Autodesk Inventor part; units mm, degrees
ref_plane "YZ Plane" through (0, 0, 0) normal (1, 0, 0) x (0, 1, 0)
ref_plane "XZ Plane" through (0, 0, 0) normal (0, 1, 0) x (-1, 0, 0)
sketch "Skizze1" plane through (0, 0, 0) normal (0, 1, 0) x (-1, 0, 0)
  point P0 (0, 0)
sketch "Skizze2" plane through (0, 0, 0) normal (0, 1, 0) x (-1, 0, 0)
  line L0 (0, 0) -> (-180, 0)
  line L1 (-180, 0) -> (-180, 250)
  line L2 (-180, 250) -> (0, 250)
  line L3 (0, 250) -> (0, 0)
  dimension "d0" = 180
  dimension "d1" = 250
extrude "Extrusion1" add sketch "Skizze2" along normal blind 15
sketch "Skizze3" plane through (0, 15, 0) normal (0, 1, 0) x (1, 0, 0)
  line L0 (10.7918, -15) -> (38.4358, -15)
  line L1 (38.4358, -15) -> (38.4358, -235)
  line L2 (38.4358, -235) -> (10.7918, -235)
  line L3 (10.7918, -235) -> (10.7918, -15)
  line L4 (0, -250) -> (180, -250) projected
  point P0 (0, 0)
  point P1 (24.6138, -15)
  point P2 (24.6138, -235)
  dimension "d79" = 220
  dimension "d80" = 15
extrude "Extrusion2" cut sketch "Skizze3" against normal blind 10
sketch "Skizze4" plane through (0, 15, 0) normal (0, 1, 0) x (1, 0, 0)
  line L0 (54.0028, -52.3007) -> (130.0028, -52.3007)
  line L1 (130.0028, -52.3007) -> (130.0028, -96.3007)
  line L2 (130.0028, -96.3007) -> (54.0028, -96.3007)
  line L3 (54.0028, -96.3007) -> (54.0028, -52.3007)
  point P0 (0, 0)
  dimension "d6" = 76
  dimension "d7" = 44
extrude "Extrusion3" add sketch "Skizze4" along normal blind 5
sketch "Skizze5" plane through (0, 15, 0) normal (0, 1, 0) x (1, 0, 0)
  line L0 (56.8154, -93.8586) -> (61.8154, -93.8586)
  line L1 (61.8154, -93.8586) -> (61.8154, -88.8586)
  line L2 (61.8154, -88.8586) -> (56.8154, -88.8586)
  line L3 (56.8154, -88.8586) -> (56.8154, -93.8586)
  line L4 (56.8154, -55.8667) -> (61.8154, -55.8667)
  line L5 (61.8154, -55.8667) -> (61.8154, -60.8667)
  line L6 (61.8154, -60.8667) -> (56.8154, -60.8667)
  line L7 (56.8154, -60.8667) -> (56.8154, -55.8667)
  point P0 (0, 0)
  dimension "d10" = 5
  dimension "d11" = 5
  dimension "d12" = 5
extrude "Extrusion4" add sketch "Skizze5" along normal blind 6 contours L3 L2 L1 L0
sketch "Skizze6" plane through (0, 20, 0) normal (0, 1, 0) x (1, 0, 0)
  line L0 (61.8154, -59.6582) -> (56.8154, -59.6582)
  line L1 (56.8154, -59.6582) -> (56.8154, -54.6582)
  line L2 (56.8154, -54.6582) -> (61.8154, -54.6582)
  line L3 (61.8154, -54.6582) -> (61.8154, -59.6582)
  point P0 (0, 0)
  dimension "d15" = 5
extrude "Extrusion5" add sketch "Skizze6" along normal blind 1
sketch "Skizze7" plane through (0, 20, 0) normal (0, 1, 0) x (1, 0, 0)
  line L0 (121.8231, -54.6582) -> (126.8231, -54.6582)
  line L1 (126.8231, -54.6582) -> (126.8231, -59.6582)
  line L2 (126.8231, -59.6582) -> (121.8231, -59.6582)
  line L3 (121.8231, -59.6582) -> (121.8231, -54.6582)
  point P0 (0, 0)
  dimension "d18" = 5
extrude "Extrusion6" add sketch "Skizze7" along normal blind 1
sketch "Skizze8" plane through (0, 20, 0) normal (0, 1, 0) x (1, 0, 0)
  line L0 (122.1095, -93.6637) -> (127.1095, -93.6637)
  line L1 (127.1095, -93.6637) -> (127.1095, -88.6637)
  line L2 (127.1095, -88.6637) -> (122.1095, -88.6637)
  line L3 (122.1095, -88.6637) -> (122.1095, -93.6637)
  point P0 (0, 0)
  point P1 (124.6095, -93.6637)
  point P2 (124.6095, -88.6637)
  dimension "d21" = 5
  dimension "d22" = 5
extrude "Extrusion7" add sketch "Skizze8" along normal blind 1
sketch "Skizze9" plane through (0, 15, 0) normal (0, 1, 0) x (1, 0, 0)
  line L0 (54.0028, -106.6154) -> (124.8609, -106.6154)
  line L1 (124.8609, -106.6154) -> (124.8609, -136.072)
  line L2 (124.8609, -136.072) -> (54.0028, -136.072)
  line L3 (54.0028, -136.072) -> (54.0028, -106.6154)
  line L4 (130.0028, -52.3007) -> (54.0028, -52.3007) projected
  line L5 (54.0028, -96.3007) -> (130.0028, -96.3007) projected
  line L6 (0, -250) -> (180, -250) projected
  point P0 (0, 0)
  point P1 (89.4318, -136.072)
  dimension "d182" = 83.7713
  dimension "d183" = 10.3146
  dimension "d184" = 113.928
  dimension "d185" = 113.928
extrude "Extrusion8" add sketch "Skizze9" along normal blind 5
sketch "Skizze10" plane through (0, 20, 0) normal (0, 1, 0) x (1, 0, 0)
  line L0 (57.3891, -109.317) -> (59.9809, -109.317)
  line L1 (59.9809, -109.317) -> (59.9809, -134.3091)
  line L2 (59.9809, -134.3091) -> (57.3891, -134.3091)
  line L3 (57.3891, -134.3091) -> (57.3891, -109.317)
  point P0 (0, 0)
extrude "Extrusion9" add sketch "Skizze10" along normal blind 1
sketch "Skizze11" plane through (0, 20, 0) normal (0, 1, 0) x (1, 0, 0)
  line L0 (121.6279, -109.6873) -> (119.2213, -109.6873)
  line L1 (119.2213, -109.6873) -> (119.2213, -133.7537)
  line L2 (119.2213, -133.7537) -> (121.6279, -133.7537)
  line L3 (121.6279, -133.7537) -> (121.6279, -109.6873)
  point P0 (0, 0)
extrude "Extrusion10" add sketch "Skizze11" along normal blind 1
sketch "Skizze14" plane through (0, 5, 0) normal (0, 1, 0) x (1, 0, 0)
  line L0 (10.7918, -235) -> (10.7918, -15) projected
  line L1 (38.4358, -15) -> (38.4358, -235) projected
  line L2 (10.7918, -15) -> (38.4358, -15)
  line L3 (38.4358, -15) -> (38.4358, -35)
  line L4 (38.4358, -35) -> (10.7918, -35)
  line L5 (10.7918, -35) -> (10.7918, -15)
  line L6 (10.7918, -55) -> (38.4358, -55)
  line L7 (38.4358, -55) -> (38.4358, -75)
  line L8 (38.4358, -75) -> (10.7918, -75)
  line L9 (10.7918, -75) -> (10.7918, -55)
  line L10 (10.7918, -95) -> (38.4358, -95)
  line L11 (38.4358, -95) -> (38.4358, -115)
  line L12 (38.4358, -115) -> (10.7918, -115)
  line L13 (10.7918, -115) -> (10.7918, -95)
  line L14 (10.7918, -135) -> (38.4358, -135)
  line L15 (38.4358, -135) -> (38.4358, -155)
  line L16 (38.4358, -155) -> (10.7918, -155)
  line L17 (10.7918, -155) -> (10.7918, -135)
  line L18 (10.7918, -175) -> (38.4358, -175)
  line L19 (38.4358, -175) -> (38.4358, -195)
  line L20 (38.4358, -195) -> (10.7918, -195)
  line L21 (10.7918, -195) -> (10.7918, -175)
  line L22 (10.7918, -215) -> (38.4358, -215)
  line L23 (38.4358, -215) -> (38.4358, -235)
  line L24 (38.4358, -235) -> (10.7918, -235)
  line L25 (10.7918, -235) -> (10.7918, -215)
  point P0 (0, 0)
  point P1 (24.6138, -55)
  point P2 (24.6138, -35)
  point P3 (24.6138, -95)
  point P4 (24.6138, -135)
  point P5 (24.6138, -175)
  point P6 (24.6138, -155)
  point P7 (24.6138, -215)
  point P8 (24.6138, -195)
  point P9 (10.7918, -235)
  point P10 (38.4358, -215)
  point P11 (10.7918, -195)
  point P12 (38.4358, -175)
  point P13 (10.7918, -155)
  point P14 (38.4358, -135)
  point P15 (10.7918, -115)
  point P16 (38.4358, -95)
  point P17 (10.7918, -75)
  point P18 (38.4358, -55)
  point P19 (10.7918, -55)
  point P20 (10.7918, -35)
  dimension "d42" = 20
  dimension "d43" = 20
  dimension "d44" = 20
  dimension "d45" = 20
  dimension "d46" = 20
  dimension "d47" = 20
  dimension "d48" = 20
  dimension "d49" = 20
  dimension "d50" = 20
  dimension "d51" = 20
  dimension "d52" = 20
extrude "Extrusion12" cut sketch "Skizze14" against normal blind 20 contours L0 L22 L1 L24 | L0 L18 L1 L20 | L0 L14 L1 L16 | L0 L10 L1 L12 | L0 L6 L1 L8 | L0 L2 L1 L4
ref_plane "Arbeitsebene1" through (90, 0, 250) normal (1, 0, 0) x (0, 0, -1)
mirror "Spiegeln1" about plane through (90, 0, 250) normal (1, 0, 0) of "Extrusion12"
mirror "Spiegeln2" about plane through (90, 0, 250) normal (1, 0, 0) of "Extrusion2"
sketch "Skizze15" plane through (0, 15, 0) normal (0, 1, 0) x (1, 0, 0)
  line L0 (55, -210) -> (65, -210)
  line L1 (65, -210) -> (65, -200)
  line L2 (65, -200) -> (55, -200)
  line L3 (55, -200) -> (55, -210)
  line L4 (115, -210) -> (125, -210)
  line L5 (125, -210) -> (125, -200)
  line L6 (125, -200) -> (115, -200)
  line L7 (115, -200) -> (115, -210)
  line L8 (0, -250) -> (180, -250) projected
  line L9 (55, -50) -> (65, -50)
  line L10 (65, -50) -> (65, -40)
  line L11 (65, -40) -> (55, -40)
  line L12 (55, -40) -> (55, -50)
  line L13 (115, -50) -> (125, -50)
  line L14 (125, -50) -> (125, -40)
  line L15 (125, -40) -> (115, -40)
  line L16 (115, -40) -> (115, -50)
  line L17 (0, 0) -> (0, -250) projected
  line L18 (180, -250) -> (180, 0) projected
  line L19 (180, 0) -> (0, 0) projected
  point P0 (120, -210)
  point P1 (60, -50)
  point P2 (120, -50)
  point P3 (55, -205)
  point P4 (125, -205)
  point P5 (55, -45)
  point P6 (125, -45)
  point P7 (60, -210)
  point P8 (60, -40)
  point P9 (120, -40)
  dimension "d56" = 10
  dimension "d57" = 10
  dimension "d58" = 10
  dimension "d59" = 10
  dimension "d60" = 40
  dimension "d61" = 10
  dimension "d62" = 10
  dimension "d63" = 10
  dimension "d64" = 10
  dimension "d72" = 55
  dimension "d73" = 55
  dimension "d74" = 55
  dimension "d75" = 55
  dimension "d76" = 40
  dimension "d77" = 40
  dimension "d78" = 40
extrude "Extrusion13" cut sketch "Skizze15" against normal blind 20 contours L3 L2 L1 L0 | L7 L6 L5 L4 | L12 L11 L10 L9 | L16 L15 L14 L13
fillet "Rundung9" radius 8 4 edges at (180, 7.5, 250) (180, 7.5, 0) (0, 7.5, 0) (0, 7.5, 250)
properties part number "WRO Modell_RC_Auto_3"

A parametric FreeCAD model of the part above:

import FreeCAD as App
import Part
import Sketcher


def edges_at(feature, points):
    """Names of the edges that pass closest to the given points."""
    edges = feature.Shape.Edges
    near = lambda p: min(range(len(edges)), key=lambda i: edges[i].distToShape(Part.Vertex(*p))[0])
    return sorted({f"Edge{near(p) + 1}" for p in points})

doc = App.newDocument("Part")
body = doc.addObject("PartDesign::Body", "Body")

sketch1 = doc.addObject("Sketcher::SketchObject", "Sketch")
body.addObject(sketch1)
sketch1.AttachmentSupport = (doc.XZ_Plane, [""])
sketch1.MapMode = "FlatFace"
sketch1.addGeometry(Part.LineSegment(App.Vector(180, 0, 0), App.Vector(0, 0, 0)), False)
sketch1.addGeometry(Part.LineSegment(App.Vector(0, 0, 0), App.Vector(0, 250, 0)), False)
sketch1.addGeometry(Part.LineSegment(App.Vector(0, 250, 0), App.Vector(180, 250, 0)), False)
sketch1.addGeometry(Part.LineSegment(App.Vector(180, 250, 0), App.Vector(180, 0, 0)), False)
sketch1.addConstraint(Sketcher.Constraint("Coincident", 0, 2, 1, 1))
sketch1.addConstraint(Sketcher.Constraint("Coincident", 1, 2, 2, 1))
sketch1.addConstraint(Sketcher.Constraint("Coincident", 2, 2, 3, 1))
sketch1.addConstraint(Sketcher.Constraint("Coincident", 3, 2, 0, 1))
sketch1.addConstraint(Sketcher.Constraint("Horizontal", 0))
sketch1.addConstraint(Sketcher.Constraint("Vertical", 1))
sketch1.addConstraint(Sketcher.Constraint("Horizontal", 2))
sketch1.addConstraint(Sketcher.Constraint("Vertical", 3))
sketch1.addConstraint(Sketcher.Constraint("Coincident", 0, 2, -1, 1))
sketch1.addConstraint(Sketcher.Constraint("DistanceX", 0, 2, 0, 1, 180.0))
sketch1.addConstraint(Sketcher.Constraint("DistanceY", 1, 1, 1, 2, 250.0))
pad1 = doc.addObject("PartDesign::Pad", "Pad")
body.addObject(pad1)
pad1.Profile = sketch1
pad1.Length = 15
pad1.Reversed = True

sketch2 = doc.addObject("Sketcher::SketchObject", "Sketch001")
body.addObject(sketch2)
sketch2.AttachmentSupport = (doc.XZ_Plane, [""])
sketch2.MapMode = "FlatFace"
sketch2.AttachmentOffset = App.Placement(App.Vector(0, 0, -15), App.Rotation())
sketch2.addGeometry(Part.LineSegment(App.Vector(38.4358, 15, 0), App.Vector(10.7918, 15, 0)), False)
sketch2.addGeometry(Part.LineSegment(App.Vector(10.7918, 15, 0), App.Vector(10.7918, 235, 0)), False)
sketch2.addGeometry(Part.LineSegment(App.Vector(10.7918, 235, 0), App.Vector(38.4358, 235, 0)), False)
sketch2.addGeometry(Part.LineSegment(App.Vector(38.4358, 235, 0), App.Vector(38.4358, 15, 0)), False)
sketch2.addConstraint(Sketcher.Constraint("Coincident", 0, 2, 1, 1))
sketch2.addConstraint(Sketcher.Constraint("Coincident", 1, 2, 2, 1))
sketch2.addConstraint(Sketcher.Constraint("Coincident", 2, 2, 3, 1))
sketch2.addConstraint(Sketcher.Constraint("Coincident", 3, 2, 0, 1))
sketch2.addConstraint(Sketcher.Constraint("Horizontal", 0))
sketch2.addConstraint(Sketcher.Constraint("Vertical", 1))
sketch2.addConstraint(Sketcher.Constraint("Horizontal", 2))
sketch2.addConstraint(Sketcher.Constraint("Vertical", 3))
sketch2.addConstraint(Sketcher.Constraint("DistanceY", 1, 1, 1, 2, 220.0))
sketch2.addConstraint(Sketcher.Constraint("DistanceY", -1, 1, 0, 2, 15.0))
sketch2.addConstraint(Sketcher.Constraint("DistanceX", 0, 2, 0, 1, 27.644))
sketch2.addConstraint(Sketcher.Constraint("DistanceX", -1, 1, 0, 2, 10.7918))
pocket1 = doc.addObject("PartDesign::Pocket", "Pocket")
body.addObject(pocket1)
pocket1.Profile = sketch2
pocket1.Length = 10
pocket1.Reversed = True

sketch3 = doc.addObject("Sketcher::SketchObject", "Sketch002")
body.addObject(sketch3)
sketch3.AttachmentSupport = (doc.XZ_Plane, [""])
sketch3.MapMode = "FlatFace"
sketch3.AttachmentOffset = App.Placement(App.Vector(0, 0, -15), App.Rotation())
sketch3.addGeometry(Part.LineSegment(App.Vector(130.0028, 52.3007, 0), App.Vector(54.0028, 52.3007, 0)), False)
sketch3.addGeometry(Part.LineSegment(App.Vector(54.0028, 52.3007, 0), App.Vector(54.0028, 96.3007, 0)), False)
sketch3.addGeometry(Part.LineSegment(App.Vector(54.0028, 96.3007, 0), App.Vector(130.0028, 96.3007, 0)), False)
sketch3.addGeometry(Part.LineSegment(App.Vector(130.0028, 96.3007, 0), App.Vector(130.0028, 52.3007, 0)), False)
sketch3.addConstraint(Sketcher.Constraint("Coincident", 0, 2, 1, 1))
sketch3.addConstraint(Sketcher.Constraint("Coincident", 1, 2, 2, 1))
sketch3.addConstraint(Sketcher.Constraint("Coincident", 2, 2, 3, 1))
sketch3.addConstraint(Sketcher.Constraint("Coincident", 3, 2, 0, 1))
sketch3.addConstraint(Sketcher.Constraint("Horizontal", 0))
sketch3.addConstraint(Sketcher.Constraint("Vertical", 1))
sketch3.addConstraint(Sketcher.Constraint("Horizontal", 2))
sketch3.addConstraint(Sketcher.Constraint("Vertical", 3))
sketch3.addConstraint(Sketcher.Constraint("DistanceX", 0, 2, 0, 1, 76.0))
sketch3.addConstraint(Sketcher.Constraint("DistanceY", 1, 1, 1, 2, 44.0))
sketch3.addConstraint(Sketcher.Constraint("DistanceX", -1, 1, 0, 2, 54.0028))
sketch3.addConstraint(Sketcher.Constraint("DistanceY", -1, 1, 0, 2, 52.3007))
pad2 = doc.addObject("PartDesign::Pad", "Pad001")
body.addObject(pad2)
pad2.Profile = sketch3
pad2.Length = 5
pad2.Reversed = True

sketch4 = doc.addObject("Sketcher::SketchObject", "Sketch003")
body.addObject(sketch4)
sketch4.AttachmentSupport = (doc.XZ_Plane, [""])
sketch4.MapMode = "FlatFace"
sketch4.AttachmentOffset = App.Placement(App.Vector(0, 0, -15), App.Rotation())
sketch4.addGeometry(Part.LineSegment(App.Vector(56.8154, 88.8586, 0), App.Vector(56.8154, 93.8586, 0)), False)
sketch4.addGeometry(Part.LineSegment(App.Vector(56.8154, 93.8586, 0), App.Vector(61.8154, 93.8586, 0)), False)
sketch4.addGeometry(Part.LineSegment(App.Vector(61.8154, 93.8586, 0), App.Vector(61.8154, 88.8586, 0)), False)
sketch4.addGeometry(Part.LineSegment(App.Vector(61.8154, 88.8586, 0), App.Vector(56.8154, 88.8586, 0)), False)
sketch4.addConstraint(Sketcher.Constraint("Coincident", 0, 2, 1, 1))
sketch4.addConstraint(Sketcher.Constraint("Coincident", 1, 2, 2, 1))
sketch4.addConstraint(Sketcher.Constraint("Coincident", 2, 2, 3, 1))
sketch4.addConstraint(Sketcher.Constraint("Coincident", 3, 2, 0, 1))
sketch4.addConstraint(Sketcher.Constraint("Vertical", 0))
sketch4.addConstraint(Sketcher.Constraint("Horizontal", 1))
sketch4.addConstraint(Sketcher.Constraint("Vertical", 2))
sketch4.addConstraint(Sketcher.Constraint("Horizontal", 3))
sketch4.addConstraint(Sketcher.Constraint("Equal", 3, 0))
sketch4.addConstraint(Sketcher.Constraint("DistanceX", 1, 1, 1, 2, 5.0))
sketch4.addConstraint(Sketcher.Constraint("DistanceX", -1, 1, 0, 2, 56.8154))
sketch4.addConstraint(Sketcher.Constraint("DistanceY", -1, 1, 0, 2, 93.8586))
pad3 = doc.addObject("PartDesign::Pad", "Pad002")
body.addObject(pad3)
pad3.Profile = sketch4
pad3.Length = 6
pad3.Reversed = True

sketch5 = doc.addObject("Sketcher::SketchObject", "Sketch004")
body.addObject(sketch5)
sketch5.AttachmentSupport = (doc.XZ_Plane, [""])
sketch5.MapMode = "FlatFace"
sketch5.AttachmentOffset = App.Placement(App.Vector(0, 0, -20), App.Rotation())
sketch5.addGeometry(Part.LineSegment(App.Vector(56.8154, 59.6582, 0), App.Vector(61.8154, 59.6582, 0)), False)
sketch5.addGeometry(Part.LineSegment(App.Vector(61.8154, 59.6582, 0), App.Vector(61.8154, 54.6582, 0)), False)
sketch5.addGeometry(Part.LineSegment(App.Vector(61.8154, 54.6582, 0), App.Vector(56.8154, 54.6582, 0)), False)
sketch5.addGeometry(Part.LineSegment(App.Vector(56.8154, 54.6582, 0), App.Vector(56.8154, 59.6582, 0)), False)
sketch5.addConstraint(Sketcher.Constraint("Coincident", 0, 2, 1, 1))
sketch5.addConstraint(Sketcher.Constraint("Coincident", 1, 2, 2, 1))
sketch5.addConstraint(Sketcher.Constraint("Coincident", 2, 2, 3, 1))
sketch5.addConstraint(Sketcher.Constraint("Coincident", 3, 2, 0, 1))
sketch5.addConstraint(Sketcher.Constraint("Horizontal", 0))
sketch5.addConstraint(Sketcher.Constraint("Vertical", 1))
sketch5.addConstraint(Sketcher.Constraint("Horizontal", 2))
sketch5.addConstraint(Sketcher.Constraint("Vertical", 3))
sketch5.addConstraint(Sketcher.Constraint("Equal", 2, 1))
sketch5.addConstraint(Sketcher.Constraint("DistanceX", 0, 1, 0, 2, 5.0))
sketch5.addConstraint(Sketcher.Constraint("DistanceX", -1, 1, 0, 2, 61.8154))
sketch5.addConstraint(Sketcher.Constraint("DistanceY", -1, 1, 0, 2, 59.6582))
pad4 = doc.addObject("PartDesign::Pad", "Pad003")
body.addObject(pad4)
pad4.Profile = sketch5
pad4.Length = 1
pad4.Reversed = True

sketch6 = doc.addObject("Sketcher::SketchObject", "Sketch005")
body.addObject(sketch6)
sketch6.AttachmentSupport = (doc.XZ_Plane, [""])
sketch6.MapMode = "FlatFace"
sketch6.AttachmentOffset = App.Placement(App.Vector(0, 0, -20), App.Rotation())
sketch6.addGeometry(Part.LineSegment(App.Vector(126.8231, 54.6582, 0), App.Vector(121.8231, 54.6582, 0)), False)
sketch6.addGeometry(Part.LineSegment(App.Vector(121.8231, 54.6582, 0), App.Vector(121.8231, 59.6582, 0)), False)
sketch6.addGeometry(Part.LineSegment(App.Vector(121.8231, 59.6582, 0), App.Vector(126.8231, 59.6582, 0)), False)
sketch6.addGeometry(Part.LineSegment(App.Vector(126.8231, 59.6582, 0), App.Vector(126.8231, 54.6582, 0)), False)
sketch6.addConstraint(Sketcher.Constraint("Coincident", 0, 2, 1, 1))
sketch6.addConstraint(Sketcher.Constraint("Coincident", 1, 2, 2, 1))
sketch6.addConstraint(Sketcher.Constraint("Coincident", 2, 2, 3, 1))
sketch6.addConstraint(Sketcher.Constraint("Coincident", 3, 2, 0, 1))
sketch6.addConstraint(Sketcher.Constraint("Horizontal", 0))
sketch6.addConstraint(Sketcher.Constraint("Vertical", 1))
sketch6.addConstraint(Sketcher.Constraint("Horizontal", 2))
sketch6.addConstraint(Sketcher.Constraint("Vertical", 3))
sketch6.addConstraint(Sketcher.Constraint("Equal", 2, 1))
sketch6.addConstraint(Sketcher.Constraint("DistanceX", 0, 2, 0, 1, 5.0))
sketch6.addConstraint(Sketcher.Constraint("DistanceX", -1, 1, 0, 2, 121.823))
sketch6.addConstraint(Sketcher.Constraint("DistanceY", -1, 1, 0, 2, 54.6582))
pad5 = doc.addObject("PartDesign::Pad", "Pad004")
body.addObject(pad5)
pad5.Profile = sketch6
pad5.Length = 1
pad5.Reversed = True

sketch7 = doc.addObject("Sketcher::SketchObject", "Sketch006")
body.addObject(sketch7)
sketch7.AttachmentSupport = (doc.XZ_Plane, [""])
sketch7.MapMode = "FlatFace"
sketch7.AttachmentOffset = App.Placement(App.Vector(0, 0, -20), App.Rotation())
sketch7.addGeometry(Part.LineSegment(App.Vector(122.1095, 88.6637, 0), App.Vector(122.1095, 93.6637, 0)), False)
sketch7.addGeometry(Part.LineSegment(App.Vector(122.1095, 93.6637, 0), App.Vector(127.1095, 93.6637, 0)), False)
sketch7.addGeometry(Part.LineSegment(App.Vector(127.1095, 93.6637, 0), App.Vector(127.1095, 88.6637, 0)), False)
sketch7.addGeometry(Part.LineSegment(App.Vector(127.1095, 88.6637, 0), App.Vector(122.1095, 88.6637, 0)), False)
sketch7.addConstraint(Sketcher.Constraint("Coincident", 0, 2, 1, 1))
sketch7.addConstraint(Sketcher.Constraint("Coincident", 1, 2, 2, 1))
sketch7.addConstraint(Sketcher.Constraint("Coincident", 2, 2, 3, 1))
sketch7.addConstraint(Sketcher.Constraint("Coincident", 3, 2, 0, 1))
sketch7.addConstraint(Sketcher.Constraint("Vertical", 0))
sketch7.addConstraint(Sketcher.Constraint("Horizontal", 1))
sketch7.addConstraint(Sketcher.Constraint("Vertical", 2))
sketch7.addConstraint(Sketcher.Constraint("Horizontal", 3))
sketch7.addConstraint(Sketcher.Constraint("Equal", 3, 0))
sketch7.addConstraint(Sketcher.Constraint("DistanceX", 1, 1, 1, 2, 5.0))
sketch7.addConstraint(Sketcher.Constraint("DistanceX", -1, 1, 0, 2, 122.1095))
sketch7.addConstraint(Sketcher.Constraint("DistanceY", -1, 1, 0, 2, 93.6637))
pad6 = doc.addObject("PartDesign::Pad", "Pad005")
body.addObject(pad6)
pad6.Profile = sketch7
pad6.Length = 1
pad6.Reversed = True

sketch8 = doc.addObject("Sketcher::SketchObject", "Sketch007")
body.addObject(sketch8)
sketch8.AttachmentSupport = (doc.XZ_Plane, [""])
sketch8.MapMode = "FlatFace"
sketch8.AttachmentOffset = App.Placement(App.Vector(0, 0, -15), App.Rotation())
sketch8.addGeometry(Part.LineSegment(App.Vector(124.8609, 106.6154, 0), App.Vector(54.0028, 106.6154, 0)), False)
sketch8.addGeometry(Part.LineSegment(App.Vector(54.0028, 106.6154, 0), App.Vector(54.0028, 136.072, 0)), False)
sketch8.addGeometry(Part.LineSegment(App.Vector(54.0028, 136.072, 0), App.Vector(124.8609, 136.072, 0)), False)
sketch8.addGeometry(Part.LineSegment(App.Vector(124.8609, 136.072, 0), App.Vector(124.8609, 106.6154, 0)), False)
sketch8.addConstraint(Sketcher.Constraint("Coincident", 0, 2, 1, 1))
sketch8.addConstraint(Sketcher.Constraint("Coincident", 1, 2, 2, 1))
sketch8.addConstraint(Sketcher.Constraint("Coincident", 2, 2, 3, 1))
sketch8.addConstraint(Sketcher.Constraint("Coincident", 3, 2, 0, 1))
sketch8.addConstraint(Sketcher.Constraint("Horizontal", 0))
sketch8.addConstraint(Sketcher.Constraint("Vertical", 1))
sketch8.addConstraint(Sketcher.Constraint("Horizontal", 2))
sketch8.addConstraint(Sketcher.Constraint("Vertical", 3))
sketch8.addConstraint(Sketcher.Constraint("DistanceX", 0, 2, 0, 1, 70.858))
sketch8.addConstraint(Sketcher.Constraint("DistanceY", 1, 1, 1, 2, 29.4566))
sketch8.addConstraint(Sketcher.Constraint("DistanceY", -1, 1, 1, 2, 136.072))
sketch8.addConstraint(Sketcher.Constraint("DistanceX", -1, 1, 2, 2, 124.861))
pad7 = doc.addObject("PartDesign::Pad", "Pad006")
body.addObject(pad7)
pad7.Profile = sketch8
pad7.Length = 5
pad7.Reversed = True

sketch9 = doc.addObject("Sketcher::SketchObject", "Sketch008")
body.addObject(sketch9)
sketch9.AttachmentSupport = (doc.XZ_Plane, [""])
sketch9.MapMode = "FlatFace"
sketch9.AttachmentOffset = App.Placement(App.Vector(0, 0, -20), App.Rotation())
sketch9.addGeometry(Part.LineSegment(App.Vector(59.9809, 109.317, 0), App.Vector(57.3891, 109.317, 0)), False)
sketch9.addGeometry(Part.LineSegment(App.Vector(57.3891, 109.317, 0), App.Vector(57.3891, 134.3091, 0)), False)
sketch9.addGeometry(Part.LineSegment(App.Vector(57.3891, 134.3091, 0), App.Vector(59.9809, 134.3091, 0)), False)
sketch9.addGeometry(Part.LineSegment(App.Vector(59.9809, 134.3091, 0), App.Vector(59.9809, 109.317, 0)), False)
sketch9.addConstraint(Sketcher.Constraint("Coincident", 0, 2, 1, 1))
sketch9.addConstraint(Sketcher.Constraint("Coincident", 1, 2, 2, 1))
sketch9.addConstraint(Sketcher.Constraint("Coincident", 2, 2, 3, 1))
sketch9.addConstraint(Sketcher.Constraint("Coincident", 3, 2, 0, 1))
sketch9.addConstraint(Sketcher.Constraint("Horizontal", 0))
sketch9.addConstraint(Sketcher.Constraint("Vertical", 1))
sketch9.addConstraint(Sketcher.Constraint("Horizontal", 2))
sketch9.addConstraint(Sketcher.Constraint("Vertical", 3))
sketch9.addConstraint(Sketcher.Constraint("DistanceY", 1, 1, 1, 2, 24.992))
sketch9.addConstraint(Sketcher.Constraint("DistanceX", 0, 2, 0, 1, 2.5918))
sketch9.addConstraint(Sketcher.Constraint("DistanceX", -1, 1, 0, 2, 57.389))
sketch9.addConstraint(Sketcher.Constraint("DistanceY", -1, 1, 0, 2, 109.317))
pad8 = doc.addObject("PartDesign::Pad", "Pad007")
body.addObject(pad8)
pad8.Profile = sketch9
pad8.Length = 1
pad8.Reversed = True

sketch10 = doc.addObject("Sketcher::SketchObject", "Sketch009")
body.addObject(sketch10)
sketch10.AttachmentSupport = (doc.XZ_Plane, [""])
sketch10.MapMode = "FlatFace"
sketch10.AttachmentOffset = App.Placement(App.Vector(0, 0, -20), App.Rotation())
sketch10.addGeometry(Part.LineSegment(App.Vector(121.6279, 133.7537, 0), App.Vector(121.6279, 109.6873, 0)), False)
sketch10.addGeometry(Part.LineSegment(App.Vector(121.6279, 109.6873, 0), App.Vector(119.2213, 109.6873, 0)), False)
sketch10.addGeometry(Part.LineSegment(App.Vector(119.2213, 109.6873, 0), App.Vector(119.2213, 133.7537, 0)), False)
sketch10.addGeometry(Part.LineSegment(App.Vector(119.2213, 133.7537, 0), App.Vector(121.6279, 133.7537, 0)), False)
sketch10.addConstraint(Sketcher.Constraint("Coincident", 0, 2, 1, 1))
sketch10.addConstraint(Sketcher.Constraint("Coincident", 1, 2, 2, 1))
sketch10.addConstraint(Sketcher.Constraint("Coincident", 2, 2, 3, 1))
sketch10.addConstraint(Sketcher.Constraint("Coincident", 3, 2, 0, 1))
sketch10.addConstraint(Sketcher.Constraint("Vertical", 0))
sketch10.addConstraint(Sketcher.Constraint("Horizontal", 1))
sketch10.addConstraint(Sketcher.Constraint("Vertical", 2))
sketch10.addConstraint(Sketcher.Constraint("Horizontal", 3))
sketch10.addConstraint(Sketcher.Constraint("DistanceX", 1, 2, 1, 1, 2.4066))
sketch10.addConstraint(Sketcher.Constraint("DistanceY", 0, 2, 0, 1, 24.0664))
sketch10.addConstraint(Sketcher.Constraint("DistanceX", -1, 1, 0, 2, 121.628))
sketch10.addConstraint(Sketcher.Constraint("DistanceY", -1, 1, 0, 2, 109.6873))
pad9 = doc.addObject("PartDesign::Pad", "Pad008")
body.addObject(pad9)
pad9.Profile = sketch10
pad9.Length = 1
pad9.Reversed = True

sketch11 = doc.addObject("Sketcher::SketchObject", "Sketch010")
body.addObject(sketch11)
sketch11.AttachmentSupport = (doc.XZ_Plane, [""])
sketch11.MapMode = "FlatFace"
sketch11.AttachmentOffset = App.Placement(App.Vector(0, 0, -5), App.Rotation())
sketch11.addGeometry(Part.LineSegment(App.Vector(10.7918, 215, 0), App.Vector(10.7918, 235, 0)), False)
sketch11.addGeometry(Part.LineSegment(App.Vector(10.7918, 235, 0), App.Vector(38.4358, 235, 0)), False)
sketch11.addGeometry(Part.LineSegment(App.Vector(38.4358, 235, 0), App.Vector(38.4358, 215, 0)), False)
sketch11.addGeometry(Part.LineSegment(App.Vector(38.4358, 215, 0), App.Vector(10.7918, 215, 0)), False)
sketch11.addGeometry(Part.LineSegment(App.Vector(10.7918, 175, 0), App.Vector(10.7918, 195, 0)), False)
sketch11.addGeometry(Part.LineSegment(App.Vector(10.7918, 195, 0), App.Vector(38.4358, 195, 0)), False)
sketch11.addGeometry(Part.LineSegment(App.Vector(38.4358, 195, 0), App.Vector(38.4358, 175, 0)), False)
sketch11.addGeometry(Part.LineSegment(App.Vector(38.4358, 175, 0), App.Vector(10.7918, 175, 0)), False)
sketch11.addGeometry(Part.LineSegment(App.Vector(10.7918, 135, 0), App.Vector(10.7918, 155, 0)), False)
sketch11.addGeometry(Part.LineSegment(App.Vector(10.7918, 155, 0), App.Vector(38.4358, 155, 0)), False)
sketch11.addGeometry(Part.LineSegment(App.Vector(38.4358, 155, 0), App.Vector(38.4358, 135, 0)), False)
sketch11.addGeometry(Part.LineSegment(App.Vector(38.4358, 135, 0), App.Vector(10.7918, 135, 0)), False)
sketch11.addGeometry(Part.LineSegment(App.Vector(10.7918, 95, 0), App.Vector(10.7918, 115, 0)), False)
sketch11.addGeometry(Part.LineSegment(App.Vector(10.7918, 115, 0), App.Vector(38.4358, 115, 0)), False)
sketch11.addGeometry(Part.LineSegment(App.Vector(38.4358, 115, 0), App.Vector(38.4358, 95, 0)), False)
sketch11.addGeometry(Part.LineSegment(App.Vector(38.4358, 95, 0), App.Vector(10.7918, 95, 0)), False)
sketch11.addGeometry(Part.LineSegment(App.Vector(10.7918, 55, 0), App.Vector(10.7918, 75, 0)), False)
sketch11.addGeometry(Part.LineSegment(App.Vector(10.7918, 75, 0), App.Vector(38.4358, 75, 0)), False)
sketch11.addGeometry(Part.LineSegment(App.Vector(38.4358, 75, 0), App.Vector(38.4358, 55, 0)), False)
sketch11.addGeometry(Part.LineSegment(App.Vector(38.4358, 55, 0), App.Vector(10.7918, 55, 0)), False)
sketch11.addGeometry(Part.LineSegment(App.Vector(10.7918, 15, 0), App.Vector(10.7918, 35, 0)), False)
sketch11.addGeometry(Part.LineSegment(App.Vector(10.7918, 35, 0), App.Vector(38.4358, 35, 0)), False)
sketch11.addGeometry(Part.LineSegment(App.Vector(38.4358, 35, 0), App.Vector(38.4358, 15, 0)), False)
sketch11.addGeometry(Part.LineSegment(App.Vector(38.4358, 15, 0), App.Vector(10.7918, 15, 0)), False)
sketch11.addConstraint(Sketcher.Constraint("Coincident", 0, 2, 1, 1))
sketch11.addConstraint(Sketcher.Constraint("Coincident", 1, 2, 2, 1))
sketch11.addConstraint(Sketcher.Constraint("Coincident", 2, 2, 3, 1))
sketch11.addConstraint(Sketcher.Constraint("Coincident", 3, 2, 0, 1))
sketch11.addConstraint(Sketcher.Constraint("Coincident", 4, 2, 5, 1))
sketch11.addConstraint(Sketcher.Constraint("Coincident", 5, 2, 6, 1))
sketch11.addConstraint(Sketcher.Constraint("Coincident", 6, 2, 7, 1))
sketch11.addConstraint(Sketcher.Constraint("Coincident", 7, 2, 4, 1))
sketch11.addConstraint(Sketcher.Constraint("Coincident", 8, 2, 9, 1))
sketch11.addConstraint(Sketcher.Constraint("Coincident", 9, 2, 10, 1))
sketch11.addConstraint(Sketcher.Constraint("Coincident", 10, 2, 11, 1))
sketch11.addConstraint(Sketcher.Constraint("Coincident", 11, 2, 8, 1))
sketch11.addConstraint(Sketcher.Constraint("Coincident", 12, 2, 13, 1))
sketch11.addConstraint(Sketcher.Constraint("Coincident", 13, 2, 14, 1))
sketch11.addConstraint(Sketcher.Constraint("Coincident", 14, 2, 15, 1))
sketch11.addConstraint(Sketcher.Constraint("Coincident", 15, 2, 12, 1))
sketch11.addConstraint(Sketcher.Constraint("Coincident", 16, 2, 17, 1))
sketch11.addConstraint(Sketcher.Constraint("Coincident", 17, 2, 18, 1))
sketch11.addConstraint(Sketcher.Constraint("Coincident", 18, 2, 19, 1))
sketch11.addConstraint(Sketcher.Constraint("Coincident", 19, 2, 16, 1))
sketch11.addConstraint(Sketcher.Constraint("Coincident", 20, 2, 21, 1))
sketch11.addConstraint(Sketcher.Constraint("Coincident", 21, 2, 22, 1))
sketch11.addConstraint(Sketcher.Constraint("Coincident", 22, 2, 23, 1))
sketch11.addConstraint(Sketcher.Constraint("Coincident", 23, 2, 20, 1))
sketch11.addConstraint(Sketcher.Constraint("Vertical", 0))
sketch11.addConstraint(Sketcher.Constraint("Horizontal", 1))
sketch11.addConstraint(Sketcher.Constraint("Vertical", 2))
sketch11.addConstraint(Sketcher.Constraint("Horizontal", 3))
sketch11.addConstraint(Sketcher.Constraint("Vertical", 4))
sketch11.addConstraint(Sketcher.Constraint("Horizontal", 5))
sketch11.addConstraint(Sketcher.Constraint("Vertical", 6))
sketch11.addConstraint(Sketcher.Constraint("Horizontal", 7))
sketch11.addConstraint(Sketcher.Constraint("Vertical", 8))
sketch11.addConstraint(Sketcher.Constraint("Horizontal", 9))
sketch11.addConstraint(Sketcher.Constraint("Vertical", 10))
sketch11.addConstraint(Sketcher.Constraint("Horizontal", 11))
sketch11.addConstraint(Sketcher.Constraint("Vertical", 12))
sketch11.addConstraint(Sketcher.Constraint("Horizontal", 13))
sketch11.addConstraint(Sketcher.Constraint("Vertical", 14))
sketch11.addConstraint(Sketcher.Constraint("Horizontal", 15))
sketch11.addConstraint(Sketcher.Constraint("Vertical", 16))
sketch11.addConstraint(Sketcher.Constraint("Horizontal", 17))
sketch11.addConstraint(Sketcher.Constraint("Vertical", 18))
sketch11.addConstraint(Sketcher.Constraint("Horizontal", 19))
sketch11.addConstraint(Sketcher.Constraint("Vertical", 20))
sketch11.addConstraint(Sketcher.Constraint("Horizontal", 21))
sketch11.addConstraint(Sketcher.Constraint("Vertical", 22))
sketch11.addConstraint(Sketcher.Constraint("Horizontal", 23))
sketch11.addConstraint(Sketcher.Constraint("Vertical", 3, 2, 4, 2))
sketch11.addConstraint(Sketcher.Constraint("Vertical", 2, 2, 5, 2))
sketch11.addConstraint(Sketcher.Constraint("Vertical", 7, 2, 8, 2))
sketch11.addConstraint(Sketcher.Constraint("Vertical", 6, 2, 9, 2))
sketch11.addConstraint(Sketcher.Constraint("Vertical", 11, 2, 12, 2))
sketch11.addConstraint(Sketcher.Constraint("Vertical", 10, 2, 13, 2))
sketch11.addConstraint(Sketcher.Constraint("Vertical", 15, 2, 16, 2))
sketch11.addConstraint(Sketcher.Constraint("Vertical", 14, 2, 17, 2))
sketch11.addConstraint(Sketcher.Constraint("Vertical", 19, 2, 20, 2))
sketch11.addConstraint(Sketcher.Constraint("Vertical", 18, 2, 21, 2))
sketch11.addConstraint(Sketcher.Constraint("Equal", 2, 4))
sketch11.addConstraint(Sketcher.Constraint("Equal", 6, 8))
sketch11.addConstraint(Sketcher.Constraint("Equal", 10, 12))
sketch11.addConstraint(Sketcher.Constraint("Equal", 14, 16))
sketch11.addConstraint(Sketcher.Constraint("Equal", 18, 20))
sketch11.addConstraint(Sketcher.Constraint("DistanceY", 0, 1, 0, 2, 20.0))
sketch11.addConstraint(Sketcher.Constraint("DistanceY", 4, 2, 3, 2, 20.0))
sketch11.addConstraint(Sketcher.Constraint("DistanceY", 8, 2, 7, 2, 20.0))
sketch11.addConstraint(Sketcher.Constraint("DistanceY", 12, 2, 11, 2, 20.0))
sketch11.addConstraint(Sketcher.Constraint("DistanceY", 16, 2, 15, 2, 20.0))
sketch11.addConstraint(Sketcher.Constraint("DistanceY", 20, 2, 19, 2, 20.0))
sketch11.addConstraint(Sketcher.Constraint("DistanceY", -1, 1, 0, 2, 235.0))
sketch11.addConstraint(Sketcher.Constraint("DistanceX", 1, 1, 1, 2, 27.644))
sketch11.addConstraint(Sketcher.Constraint("DistanceX", -1, 1, 0, 2, 10.7918))
pocket2 = doc.addObject("PartDesign::Pocket", "Pocket001")
body.addObject(pocket2)
pocket2.Profile = sketch11
pocket2.Length = 20
pocket2.Reversed = True
doc.recompute()

datumplane = doc.addObject("PartDesign::Plane", "DatumPlane")
body.addObject(datumplane)
datumplane.AttachmentSupport = (doc.YZ_Plane, [""])
datumplane.MapMode = "FlatFace"
datumplane.AttachmentOffset = App.Placement(App.Vector(0, 0, 90), App.Rotation())
mirrored = doc.addObject("PartDesign::Mirrored", "Mirrored")
body.addObject(mirrored)
mirrored.Originals = [pocket2]
mirrored.MirrorPlane = (datumplane, [""])
body.Tip = mirrored
doc.recompute()

datumplane2 = doc.addObject("PartDesign::Plane", "DatumPlane001")
body.addObject(datumplane2)
datumplane2.AttachmentSupport = (doc.YZ_Plane, [""])
datumplane2.MapMode = "FlatFace"
datumplane2.AttachmentOffset = App.Placement(App.Vector(0, 0, 90), App.Rotation())
mirrored2 = doc.addObject("PartDesign::Mirrored", "Mirrored001")
body.addObject(mirrored2)
mirrored2.Originals = [pocket1]
mirrored2.MirrorPlane = (datumplane2, [""])
body.Tip = mirrored2

sketch12 = doc.addObject("Sketcher::SketchObject", "Sketch011")
body.addObject(sketch12)
sketch12.AttachmentSupport = (doc.XZ_Plane, [""])
sketch12.MapMode = "FlatFace"
sketch12.AttachmentOffset = App.Placement(App.Vector(0, 0, -15), App.Rotation())
sketch12.addGeometry(Part.LineSegment(App.Vector(55, 200, 0), App.Vector(55, 210, 0)), False)
sketch12.addGeometry(Part.LineSegment(App.Vector(55, 210, 0), App.Vector(65, 210, 0)), False)
sketch12.addGeometry(Part.LineSegment(App.Vector(65, 210, 0), App.Vector(65, 200, 0)), False)
sketch12.addGeometry(Part.LineSegment(App.Vector(65, 200, 0), App.Vector(55, 200, 0)), False)
sketch12.addGeometry(Part.LineSegment(App.Vector(115, 200, 0), App.Vector(115, 210, 0)), False)
sketch12.addGeometry(Part.LineSegment(App.Vector(115, 210, 0), App.Vector(125, 210, 0)), False)
sketch12.addGeometry(Part.LineSegment(App.Vector(125, 210, 0), App.Vector(125, 200, 0)), False)
sketch12.addGeometry(Part.LineSegment(App.Vector(125, 200, 0), App.Vector(115, 200, 0)), False)
sketch12.addGeometry(Part.LineSegment(App.Vector(55, 40, 0), App.Vector(55, 50, 0)), False)
sketch12.addGeometry(Part.LineSegment(App.Vector(55, 50, 0), App.Vector(65, 50, 0)), False)
sketch12.addGeometry(Part.LineSegment(App.Vector(65, 50, 0), App.Vector(65, 40, 0)), False)
sketch12.addGeometry(Part.LineSegment(App.Vector(65, 40, 0), App.Vector(55, 40, 0)), False)
sketch12.addGeometry(Part.LineSegment(App.Vector(115, 40, 0), App.Vector(115, 50, 0)), False)
sketch12.addGeometry(Part.LineSegment(App.Vector(115, 50, 0), App.Vector(125, 50, 0)), False)
sketch12.addGeometry(Part.LineSegment(App.Vector(125, 50, 0), App.Vector(125, 40, 0)), False)
sketch12.addGeometry(Part.LineSegment(App.Vector(125, 40, 0), App.Vector(115, 40, 0)), False)
sketch12.addConstraint(Sketcher.Constraint("Coincident", 0, 2, 1, 1))
sketch12.addConstraint(Sketcher.Constraint("Coincident", 1, 2, 2, 1))
sketch12.addConstraint(Sketcher.Constraint("Coincident", 2, 2, 3, 1))
sketch12.addConstraint(Sketcher.Constraint("Coincident", 3, 2, 0, 1))
sketch12.addConstraint(Sketcher.Constraint("Coincident", 4, 2, 5, 1))
sketch12.addConstraint(Sketcher.Constraint("Coincident", 5, 2, 6, 1))
sketch12.addConstraint(Sketcher.Constraint("Coincident", 6, 2, 7, 1))
sketch12.addConstraint(Sketcher.Constraint("Coincident", 7, 2, 4, 1))
sketch12.addConstraint(Sketcher.Constraint("Coincident", 8, 2, 9, 1))
sketch12.addConstraint(Sketcher.Constraint("Coincident", 9, 2, 10, 1))
sketch12.addConstraint(Sketcher.Constraint("Coincident", 10, 2, 11, 1))
sketch12.addConstraint(Sketcher.Constraint("Coincident", 11, 2, 8, 1))
sketch12.addConstraint(Sketcher.Constraint("Coincident", 12, 2, 13, 1))
sketch12.addConstraint(Sketcher.Constraint("Coincident", 13, 2, 14, 1))
sketch12.addConstraint(Sketcher.Constraint("Coincident", 14, 2, 15, 1))
sketch12.addConstraint(Sketcher.Constraint("Coincident", 15, 2, 12, 1))
sketch12.addConstraint(Sketcher.Constraint("Vertical", 0))
sketch12.addConstraint(Sketcher.Constraint("Horizontal", 1))
sketch12.addConstraint(Sketcher.Constraint("Vertical", 2))
sketch12.addConstraint(Sketcher.Constraint("Horizontal", 3))
sketch12.addConstraint(Sketcher.Constraint("Vertical", 4))
sketch12.addConstraint(Sketcher.Constraint("Horizontal", 5))
sketch12.addConstraint(Sketcher.Constraint("Vertical", 6))
sketch12.addConstraint(Sketcher.Constraint("Horizontal", 7))
sketch12.addConstraint(Sketcher.Constraint("Vertical", 8))
sketch12.addConstraint(Sketcher.Constraint("Horizontal", 9))
sketch12.addConstraint(Sketcher.Constraint("Vertical", 10))
sketch12.addConstraint(Sketcher.Constraint("Horizontal", 11))
sketch12.addConstraint(Sketcher.Constraint("Vertical", 12))
sketch12.addConstraint(Sketcher.Constraint("Horizontal", 13))
sketch12.addConstraint(Sketcher.Constraint("Vertical", 14))
sketch12.addConstraint(Sketcher.Constraint("Horizontal", 15))
sketch12.addConstraint(Sketcher.Constraint("Horizontal", 1, 2, 4, 2))
sketch12.addConstraint(Sketcher.Constraint("Horizontal", 3, 2, 6, 2))
sketch12.addConstraint(Sketcher.Constraint("Horizontal", 9, 2, 12, 2))
sketch12.addConstraint(Sketcher.Constraint("Horizontal", 11, 2, 14, 2))
sketch12.addConstraint(Sketcher.Constraint("Vertical", 3, 2, 8, 2))
sketch12.addConstraint(Sketcher.Constraint("Vertical", 2, 2, 9, 2))
sketch12.addConstraint(Sketcher.Constraint("Vertical", 7, 2, 12, 2))
sketch12.addConstraint(Sketcher.Constraint("Vertical", 6, 2, 13, 2))
sketch12.addConstraint(Sketcher.Constraint("Equal", 3, 5))
sketch12.addConstraint(Sketcher.Constraint("Equal", 15, 0))
sketch12.addConstraint(Sketcher.Constraint("Equal", 6, 8))
sketch12.addConstraint(Sketcher.Constraint("DistanceX", 1, 1, 1, 2, 10.0))
sketch12.addConstraint(Sketcher.Constraint("DistanceX", -1, 1, 0, 2, 55.0))
sketch12.addConstraint(Sketcher.Constraint("DistanceY", -1, 1, 10, 2, 40.0))
sketch12.addConstraint(Sketcher.Constraint("DistanceY", -1, 1, 0, 2, 210.0))
sketch12.addConstraint(Sketcher.Constraint("DistanceX", -1, 1, 4, 2, 115.0))
pocket3 = doc.addObject("PartDesign::Pocket", "Pocket002")
body.addObject(pocket3)
pocket3.Profile = sketch12
pocket3.Length = 20
pocket3.Reversed = True
doc.recompute()

fillet = doc.addObject("PartDesign::Fillet", "Fillet")
body.addObject(fillet)
fillet.Base = (pocket3, edges_at(pocket3, [
    (180, 7.5, 250),
    (180, 7.5, 0),
    (0, 7.5, 0),
    (0, 7.5, 250),
]))
fillet.Radius = 8

doc.recompute()
